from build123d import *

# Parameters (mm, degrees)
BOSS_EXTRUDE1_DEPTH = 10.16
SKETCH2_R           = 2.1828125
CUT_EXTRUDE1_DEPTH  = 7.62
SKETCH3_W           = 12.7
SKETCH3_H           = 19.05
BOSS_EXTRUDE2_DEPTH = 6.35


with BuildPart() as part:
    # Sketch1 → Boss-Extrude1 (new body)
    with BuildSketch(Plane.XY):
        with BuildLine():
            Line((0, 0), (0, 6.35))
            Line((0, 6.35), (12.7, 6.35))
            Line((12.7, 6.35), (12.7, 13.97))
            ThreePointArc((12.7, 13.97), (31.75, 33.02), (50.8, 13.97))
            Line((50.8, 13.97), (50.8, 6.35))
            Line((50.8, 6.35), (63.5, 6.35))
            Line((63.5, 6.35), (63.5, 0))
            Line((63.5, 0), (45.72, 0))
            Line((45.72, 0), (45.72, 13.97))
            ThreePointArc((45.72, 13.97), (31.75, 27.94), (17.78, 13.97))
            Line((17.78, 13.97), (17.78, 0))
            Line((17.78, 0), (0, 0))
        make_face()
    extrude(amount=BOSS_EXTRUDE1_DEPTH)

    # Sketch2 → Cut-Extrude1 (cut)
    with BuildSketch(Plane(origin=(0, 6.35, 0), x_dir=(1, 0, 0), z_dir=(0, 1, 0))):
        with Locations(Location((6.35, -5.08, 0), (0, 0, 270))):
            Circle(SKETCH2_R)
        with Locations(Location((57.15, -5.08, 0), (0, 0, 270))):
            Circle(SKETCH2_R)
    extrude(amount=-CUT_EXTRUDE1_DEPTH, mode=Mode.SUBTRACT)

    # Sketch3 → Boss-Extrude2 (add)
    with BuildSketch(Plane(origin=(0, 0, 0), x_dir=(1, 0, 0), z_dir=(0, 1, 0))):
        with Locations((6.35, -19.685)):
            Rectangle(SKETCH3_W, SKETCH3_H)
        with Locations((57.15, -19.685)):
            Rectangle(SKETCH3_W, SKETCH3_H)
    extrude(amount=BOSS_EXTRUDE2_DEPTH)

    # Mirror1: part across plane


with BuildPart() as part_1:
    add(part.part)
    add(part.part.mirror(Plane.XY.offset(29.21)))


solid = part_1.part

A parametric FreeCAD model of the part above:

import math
import FreeCAD as App
import Part
import Sketcher
Q = App.Units.Quantity

doc = App.newDocument("Part")
body = doc.addObject("PartDesign::Body", "Body")

# Sketch on XY plane
sketch1 = body.newObject("Sketcher::SketchObject", "Sketch")
sketch1.AttachmentSupport = (doc.getObject("XY_Plane"), [""])
sketch1.MapMode = "FlatFace"
sketch1.addGeometry(Part.LineSegment(App.Vector(0, 6.35, 0), App.Vector(0, 0, 0)), False)
sketch1.addGeometry(Part.LineSegment(App.Vector(0, 0, 0), App.Vector(17.78, 0, 0)), False)
sketch1.addGeometry(Part.LineSegment(App.Vector(17.78, 0, 0), App.Vector(17.78, 13.97, 0)), False)
sketch1.addGeometry(Part.ArcOfCircle(Part.Circle(App.Vector(31.75, 13.97, 0), App.Vector(0, 0, 1), 13.97), math.radians(0), math.radians(180)), False)
sketch1.addGeometry(Part.LineSegment(App.Vector(45.72, 13.97, 0), App.Vector(45.72, 0, 0)), False)
sketch1.addGeometry(Part.LineSegment(App.Vector(45.72, 0, 0), App.Vector(63.5, 0, 0)), False)
sketch1.addGeometry(Part.LineSegment(App.Vector(63.5, 0, 0), App.Vector(63.5, 6.35, 0)), False)
sketch1.addGeometry(Part.LineSegment(App.Vector(63.5, 6.35, 0), App.Vector(50.8, 6.35, 0)), False)
sketch1.addGeometry(Part.LineSegment(App.Vector(50.8, 6.35, 0), App.Vector(50.8, 13.97, 0)), False)
sketch1.addGeometry(Part.ArcOfCircle(Part.Circle(App.Vector(31.75, 13.97, 0), App.Vector(0, 0, 1), 19.05), math.radians(0), math.radians(180)), False)
sketch1.addGeometry(Part.LineSegment(App.Vector(12.7, 13.97, 0), App.Vector(12.7, 6.35, 0)), False)
sketch1.addGeometry(Part.LineSegment(App.Vector(12.7, 6.35, 0), App.Vector(0, 6.35, 0)), False)
sketch1.addConstraint(Sketcher.Constraint("Coincident", 0, 2, 1, 1))
sketch1.addConstraint(Sketcher.Constraint("Coincident", 1, 2, 2, 1))
sketch1.addConstraint(Sketcher.Constraint("Tangent", 2, 2, 3, 2))
sketch1.addConstraint(Sketcher.Constraint("Tangent", 3, 1, 4, 1))
sketch1.addConstraint(Sketcher.Constraint("Coincident", 4, 2, 5, 1))
sketch1.addConstraint(Sketcher.Constraint("Coincident", 5, 2, 6, 1))
sketch1.addConstraint(Sketcher.Constraint("Coincident", 6, 2, 7, 1))
sketch1.addConstraint(Sketcher.Constraint("Coincident", 7, 2, 8, 1))
sketch1.addConstraint(Sketcher.Constraint("Tangent", 8, 2, 9, 1))
sketch1.addConstraint(Sketcher.Constraint("Tangent", 9, 2, 10, 1))
sketch1.addConstraint(Sketcher.Constraint("Coincident", 10, 2, 11, 1))
sketch1.addConstraint(Sketcher.Constraint("Coincident", 11, 2, 0, 1))
sketch1.addConstraint(Sketcher.Constraint("Vertical", 0))
sketch1.addConstraint(Sketcher.Constraint("Horizontal", 1))
sketch1.addConstraint(Sketcher.Constraint("Vertical", 2))
sketch1.addConstraint(Sketcher.Constraint("Vertical", 4))
sketch1.addConstraint(Sketcher.Constraint("Horizontal", 5))
sketch1.addConstraint(Sketcher.Constraint("Vertical", 6))
sketch1.addConstraint(Sketcher.Constraint("Horizontal", 7))
sketch1.addConstraint(Sketcher.Constraint("Vertical", 8))
sketch1.addConstraint(Sketcher.Constraint("Vertical", 10))
sketch1.addConstraint(Sketcher.Constraint("Horizontal", 11))
sketch1.addConstraint(Sketcher.Constraint("Coincident", 0, 2, -1, 1))
sketch1.addConstraint(Sketcher.Constraint("Coincident", 9, 3, 3, 3))
sketch1.addConstraint(Sketcher.Constraint("PointOnObject", 4, 2, -1))
sketch1.addConstraint(Sketcher.Constraint("Horizontal", 7, 2, 10, 2))
sketch1.addConstraint(Sketcher.Constraint("Equal", 1, 5))
sketch1.addConstraint(Sketcher.Constraint("Radius", 3, Q("0.55 in")))
sketch1.addConstraint(Sketcher.Constraint("Radius", 9, Q("0.75 in")))
sketch1.addConstraint(Sketcher.Constraint("DistanceX", 1, 1, 1, 2, Q("0.7 in")))
sketch1.addConstraint(Sketcher.Constraint("DistanceY", 8, 1, 8, 2, Q("0.3 in")))
sketch1.addConstraint(Sketcher.Constraint("DistanceY", 0, 2, 0, 1, Q("0.25 in")))
pad1 = body.newObject("PartDesign::Pad", "Pad")
pad1.Profile = sketch1
pad1.Length = Q("0.4 in")

# Sketch on XZ plane
sketch2 = body.newObject("Sketcher::SketchObject", "Sketch001")
sketch2.AttachmentSupport = (doc.getObject("XZ_Plane"), [""])
sketch2.MapMode = "FlatFace"
sketch2.AttachmentOffset = App.Placement(App.Vector(0, 0, -0.25 * 25.4), App.Rotation())
sketch2.addGeometry(Part.Circle(App.Vector(6.35, 5.08, 0), App.Vector(0, 0, 1), 2.182812), False)
sketch2.addGeometry(Part.Circle(App.Vector(57.15, 5.08, 0), App.Vector(0, 0, 1), 2.182812), False)
sketch2.addConstraint(Sketcher.Constraint("Equal", 0, 1))
sketch2.addConstraint(Sketcher.Constraint("Horizontal", 0, 3, 1, 3))
sketch2.addConstraint(Sketcher.Constraint("Diameter", 0, Q("0.171875 in")))
sketch2.addConstraint(Sketcher.Constraint("DistanceX", 0, 3, 1, 3, Q("2 in")))
sketch2.addConstraint(Sketcher.Constraint("DistanceY", -1, 1, 0, 3, Q("0.2 in")))
sketch2.addConstraint(Sketcher.Constraint("DistanceX", -1, 1, 0, 3, Q("0.25 in")))
pocket1 = body.newObject("PartDesign::Pocket", "Pocket")
pocket1.Profile = sketch2
pocket1.Length = Q("0.3 in")
pocket1.Reversed = True

# Sketch on XZ plane
sketch3 = body.newObject("Sketcher::SketchObject", "Sketch002")
sketch3.AttachmentSupport = (doc.getObject("XZ_Plane"), [""])
sketch3.MapMode = "FlatFace"
sketch3.addGeometry(Part.LineSegment(App.Vector(0, 10.16, 0), App.Vector(0, 29.21, 0)), False)
sketch3.addGeometry(Part.LineSegment(App.Vector(0, 29.21, 0), App.Vector(12.7, 29.21, 0)), False)
sketch3.addGeometry(Part.LineSegment(App.Vector(12.7, 29.21, 0), App.Vector(12.7, 10.16, 0)), False)
sketch3.addGeometry(Part.LineSegment(App.Vector(12.7, 10.16, 0), App.Vector(0, 10.16, 0)), False)
sketch3.addGeometry(Part.LineSegment(App.Vector(50.8, 10.16, 0), App.Vector(50.8, 29.21, 0)), False)
sketch3.addGeometry(Part.LineSegment(App.Vector(50.8, 29.21, 0), App.Vector(63.5, 29.21, 0)), False)
sketch3.addGeometry(Part.LineSegment(App.Vector(63.5, 29.21, 0), App.Vector(63.5, 10.16, 0)), False)
sketch3.addGeometry(Part.LineSegment(App.Vector(63.5, 10.16, 0), App.Vector(50.8, 10.16, 0)), False)
sketch3.addConstraint(Sketcher.Constraint("Coincident", 0, 2, 1, 1))
sketch3.addConstraint(Sketcher.Constraint("Coincident", 1, 2, 2, 1))
sketch3.addConstraint(Sketcher.Constraint("Coincident", 2, 2, 3, 1))
sketch3.addConstraint(Sketcher.Constraint("Coincident", 3, 2, 0, 1))
sketch3.addConstraint(Sketcher.Constraint("Coincident", 4, 2, 5, 1))
sketch3.addConstraint(Sketcher.Constraint("Coincident", 5, 2, 6, 1))
sketch3.addConstraint(Sketcher.Constraint("Coincident", 6, 2, 7, 1))
sketch3.addConstraint(Sketcher.Constraint("Coincident", 7, 2, 4, 1))
sketch3.addConstraint(Sketcher.Constraint("Vertical", 0))
sketch3.addConstraint(Sketcher.Constraint("Horizontal", 1))
sketch3.addConstraint(Sketcher.Constraint("Vertical", 2))
sketch3.addConstraint(Sketcher.Constraint("Horizontal", 3))
sketch3.addConstraint(Sketcher.Constraint("Vertical", 4))
sketch3.addConstraint(Sketcher.Constraint("Horizontal", 5))
sketch3.addConstraint(Sketcher.Constraint("Vertical", 6))
sketch3.addConstraint(Sketcher.Constraint("Horizontal", 7))
sketch3.addConstraint(Sketcher.Constraint("PointOnObject", 0, 2, -2))
sketch3.addConstraint(Sketcher.Constraint("Horizontal", 1, 2, 4, 2))
sketch3.addConstraint(Sketcher.Constraint("Horizontal", 3, 2, 6, 2))
sketch3.addConstraint(Sketcher.Constraint("Equal", 3, 5))
sketch3.addConstraint(Sketcher.Constraint("DistanceX", 1, 1, 1, 2, Q("0.5 in")))
sketch3.addConstraint(Sketcher.Constraint("DistanceX", -1, 1, 4, 2, Q("2 in")))
sketch3.addConstraint(Sketcher.Constraint("DistanceY", 0, 1, 0, 2, Q("0.75 in")))
sketch3.addConstraint(Sketcher.Constraint("DistanceY", -1, 1, 2, 2, Q("0.4 in")))
pad2 = body.newObject("PartDesign::Pad", "Pad001")
pad2.Profile = sketch3
pad2.Length = Q("0.25 in")
pad2.Reversed = True
body2 = doc.addObject("PartDesign::Body", "Body001")
doc.recompute()

body2.BaseFeature = body
doc.recompute()

mirroring = doc.addObject("Part::Mirroring", "Mirroring")
mirroring.Source = body
mirroring.Base = App.Vector(0, 0, 29.21)
mirroring.Normal = App.Vector(0, 0, 1)
body3 = doc.addObject("PartDesign::Body", "Body002")
body3.BaseFeature = mirroring
boolean = body2.newObject("PartDesign::Boolean", "Boolean")
boolean.Type = "Fuse"
boolean.addObjects([body3])
doc.recompute()
mirroring.Visibility = False

doc.recompute()
